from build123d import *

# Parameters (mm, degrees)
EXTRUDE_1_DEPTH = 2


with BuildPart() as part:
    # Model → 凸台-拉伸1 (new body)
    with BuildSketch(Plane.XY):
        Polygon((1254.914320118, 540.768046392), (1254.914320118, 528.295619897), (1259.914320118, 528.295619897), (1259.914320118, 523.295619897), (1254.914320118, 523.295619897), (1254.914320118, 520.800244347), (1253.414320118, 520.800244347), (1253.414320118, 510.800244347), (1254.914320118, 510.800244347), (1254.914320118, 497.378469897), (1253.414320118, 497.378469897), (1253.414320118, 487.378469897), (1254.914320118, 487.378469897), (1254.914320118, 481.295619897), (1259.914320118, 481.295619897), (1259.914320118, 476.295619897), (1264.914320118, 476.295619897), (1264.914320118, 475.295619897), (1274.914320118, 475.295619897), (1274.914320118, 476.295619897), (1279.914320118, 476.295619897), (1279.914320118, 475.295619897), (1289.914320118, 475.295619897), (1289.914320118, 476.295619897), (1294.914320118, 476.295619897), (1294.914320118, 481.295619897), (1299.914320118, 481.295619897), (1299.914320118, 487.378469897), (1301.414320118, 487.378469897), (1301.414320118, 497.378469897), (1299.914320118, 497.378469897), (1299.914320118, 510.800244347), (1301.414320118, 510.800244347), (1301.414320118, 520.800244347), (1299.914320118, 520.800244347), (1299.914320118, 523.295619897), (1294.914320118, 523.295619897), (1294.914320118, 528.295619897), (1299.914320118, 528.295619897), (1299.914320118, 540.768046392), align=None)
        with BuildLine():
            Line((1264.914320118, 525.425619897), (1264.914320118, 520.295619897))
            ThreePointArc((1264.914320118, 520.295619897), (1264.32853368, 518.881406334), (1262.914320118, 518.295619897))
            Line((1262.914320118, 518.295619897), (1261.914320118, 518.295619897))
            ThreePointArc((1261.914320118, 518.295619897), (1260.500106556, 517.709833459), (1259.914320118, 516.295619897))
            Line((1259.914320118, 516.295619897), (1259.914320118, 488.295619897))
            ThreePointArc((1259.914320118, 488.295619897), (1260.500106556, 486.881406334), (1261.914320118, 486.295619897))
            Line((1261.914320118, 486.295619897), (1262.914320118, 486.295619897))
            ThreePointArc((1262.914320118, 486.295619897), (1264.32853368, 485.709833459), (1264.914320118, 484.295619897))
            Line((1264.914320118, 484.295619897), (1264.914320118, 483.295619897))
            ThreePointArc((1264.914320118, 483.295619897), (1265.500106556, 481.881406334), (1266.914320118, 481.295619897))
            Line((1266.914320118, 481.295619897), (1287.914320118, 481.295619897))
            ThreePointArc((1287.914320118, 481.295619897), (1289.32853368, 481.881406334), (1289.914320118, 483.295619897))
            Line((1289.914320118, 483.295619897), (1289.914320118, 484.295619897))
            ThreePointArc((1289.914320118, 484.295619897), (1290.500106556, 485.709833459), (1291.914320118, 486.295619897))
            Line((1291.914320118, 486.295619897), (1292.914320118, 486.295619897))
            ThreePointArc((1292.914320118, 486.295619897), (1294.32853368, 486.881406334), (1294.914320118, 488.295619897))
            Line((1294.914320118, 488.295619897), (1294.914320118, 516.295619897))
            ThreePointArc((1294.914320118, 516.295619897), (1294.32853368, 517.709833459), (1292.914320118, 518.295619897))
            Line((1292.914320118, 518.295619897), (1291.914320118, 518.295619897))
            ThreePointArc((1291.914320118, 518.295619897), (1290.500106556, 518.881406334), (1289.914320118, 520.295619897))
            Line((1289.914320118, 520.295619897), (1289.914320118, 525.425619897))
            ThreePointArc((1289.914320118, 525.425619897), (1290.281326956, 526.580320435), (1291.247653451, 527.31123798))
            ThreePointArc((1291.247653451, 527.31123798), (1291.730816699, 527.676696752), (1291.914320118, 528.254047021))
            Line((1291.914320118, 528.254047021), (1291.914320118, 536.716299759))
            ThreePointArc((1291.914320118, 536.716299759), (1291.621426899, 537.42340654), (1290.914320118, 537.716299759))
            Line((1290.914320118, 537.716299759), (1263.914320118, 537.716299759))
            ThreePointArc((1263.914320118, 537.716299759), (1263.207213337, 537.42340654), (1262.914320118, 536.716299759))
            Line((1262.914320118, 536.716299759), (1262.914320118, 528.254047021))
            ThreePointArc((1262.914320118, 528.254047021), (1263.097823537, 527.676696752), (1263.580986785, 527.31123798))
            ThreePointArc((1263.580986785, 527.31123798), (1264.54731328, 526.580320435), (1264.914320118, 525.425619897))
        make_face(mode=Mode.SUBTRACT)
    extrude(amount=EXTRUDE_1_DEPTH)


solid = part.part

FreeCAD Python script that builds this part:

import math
import FreeCAD as App
import Part
import Sketcher
from FreeCAD import Vector
Q = App.Units.Quantity


def add_polygon(sketch, points):
    """Adds a closed chain of lines whose ends are joined by coincident constraints."""
    first, n = sketch.GeometryCount, len(points)
    for a, b in zip(points, points[1:] + points[:1]):
        sketch.addGeometry(Part.LineSegment(App.Vector(*a, 0), App.Vector(*b, 0)), False)
    for i in range(n):
        sketch.addConstraint(Sketcher.Constraint("Coincident", first + i, 2, first + (i + 1) % n, 1))

doc = App.newDocument("Part")
body = doc.addObject("PartDesign::Body", "Body")

# Sketch on XY plane
sketch1 = doc.addObject("Sketcher::SketchObject", "Sketch")
body.addObject(sketch1)
sketch1.AttachmentSupport = (doc.XY_Plane, [""])
sketch1.MapMode = "FlatFace"
add_polygon(sketch1, [(1254.91432, 540.768046), (1254.91432, 528.29562), (1259.91432, 528.29562), (1259.91432, 523.29562), (1254.91432, 523.29562), (1254.91432, 520.800244), (1253.41432, 520.800244), (1253.41432, 510.800244), (1254.91432, 510.800244), (1254.91432, 497.37847), (1253.41432, 497.37847), (1253.41432, 487.37847), (1254.91432, 487.37847), (1254.91432, 481.29562), (1259.91432, 481.29562), (1259.91432, 476.29562), (1264.91432, 476.29562), (1264.91432, 475.29562), (1274.91432, 475.29562), (1274.91432, 476.29562), (1279.91432, 476.29562), (1279.91432, 475.29562), (1289.91432, 475.29562), (1289.91432, 476.29562), (1294.91432, 476.29562), (1294.91432, 481.29562), (1299.91432, 481.29562), (1299.91432, 487.37847), (1301.41432, 487.37847), (1301.41432, 497.37847), (1299.91432, 497.37847), (1299.91432, 510.800244), (1301.41432, 510.800244), (1301.41432, 520.800244), (1299.91432, 520.800244), (1299.91432, 523.29562), (1294.91432, 523.29562), (1294.91432, 528.29562), (1299.91432, 528.29562), (1299.91432, 540.768046)])  # lines 0-39
sketch1.addGeometry(Part.LineSegment(Vector(1264.91432, 520.29562, 0), Vector(1264.91432, 525.42562, 0)), False)  # 40
sketch1.addGeometry(Part.ArcOfCircle(Part.Circle(Vector(1262.91432, 525.42562, 0), Vector(0, 0, 1), 2), math.radians(0), math.radians(70.528779)), False)  # 41
sketch1.addGeometry(Part.ArcOfCircle(Part.Circle(Vector(1263.91432, 528.254047, 0), Vector(0, 0, 1), 1), math.radians(180), math.radians(250.528779)), False)  # 42
sketch1.addGeometry(Part.LineSegment(Vector(1262.91432, 528.254047, 0), Vector(1262.91432, 536.7163, 0)), False)  # 43
sketch1.addGeometry(Part.ArcOfCircle(Part.Circle(Vector(1263.91432, 536.7163, 0), Vector(0, 0, 1), 1), math.radians(90), math.radians(180)), False)  # 44
sketch1.addGeometry(Part.LineSegment(Vector(1263.91432, 537.7163, 0), Vector(1290.91432, 537.7163, 0)), False)  # 45
sketch1.addGeometry(Part.ArcOfCircle(Part.Circle(Vector(1290.91432, 536.7163, 0), Vector(0, 0, 1), 1), math.radians(0), math.radians(90)), False)  # 46
sketch1.addGeometry(Part.LineSegment(Vector(1291.91432, 536.7163, 0), Vector(1291.91432, 528.254047, 0)), False)  # 47
sketch1.addGeometry(Part.ArcOfCircle(Part.Circle(Vector(1290.91432, 528.254047, 0), Vector(0, 0, 1), 1), math.radians(-70.528779), math.radians(0)), False)  # 48
sketch1.addGeometry(Part.ArcOfCircle(Part.Circle(Vector(1291.91432, 525.42562, 0), Vector(0, 0, 1), 2), math.radians(109.471221), math.radians(180)), False)  # 49
sketch1.addGeometry(Part.LineSegment(Vector(1289.91432, 525.42562, 0), Vector(1289.91432, 520.29562, 0)), False)  # 50
sketch1.addGeometry(Part.ArcOfCircle(Part.Circle(Vector(1291.91432, 520.29562, 0), Vector(0, 0, 1), 2), math.radians(180), math.radians(270)), False)  # 51
sketch1.addGeometry(Part.LineSegment(Vector(1291.91432, 518.29562, 0), Vector(1292.91432, 518.29562, 0)), False)  # 52
sketch1.addGeometry(Part.ArcOfCircle(Part.Circle(Vector(1292.91432, 516.29562, 0), Vector(0, 0, 1), 2), math.radians(0), math.radians(90)), False)  # 53
sketch1.addGeometry(Part.LineSegment(Vector(1294.91432, 516.29562, 0), Vector(1294.91432, 488.29562, 0)), False)  # 54
sketch1.addGeometry(Part.ArcOfCircle(Part.Circle(Vector(1292.91432, 488.29562, 0), Vector(0, 0, 1), 2), math.radians(-90), math.radians(0)), False)  # 55
sketch1.addGeometry(Part.LineSegment(Vector(1292.91432, 486.29562, 0), Vector(1291.91432, 486.29562, 0)), False)  # 56
sketch1.addGeometry(Part.ArcOfCircle(Part.Circle(Vector(1291.91432, 484.29562, 0), Vector(0, 0, 1), 2), math.radians(90), math.radians(180)), False)  # 57
sketch1.addGeometry(Part.LineSegment(Vector(1289.91432, 484.29562, 0), Vector(1289.91432, 483.29562, 0)), False)  # 58
sketch1.addGeometry(Part.ArcOfCircle(Part.Circle(Vector(1287.91432, 483.29562, 0), Vector(0, 0, 1), 2), math.radians(-90), math.radians(0)), False)  # 59
sketch1.addGeometry(Part.LineSegment(Vector(1287.91432, 481.29562, 0), Vector(1266.91432, 481.29562, 0)), False)  # 60
sketch1.addGeometry(Part.ArcOfCircle(Part.Circle(Vector(1266.91432, 483.29562, 0), Vector(0, 0, 1), 2), math.radians(180), math.radians(270)), False)  # 61
sketch1.addGeometry(Part.LineSegment(Vector(1264.91432, 483.29562, 0), Vector(1264.91432, 484.29562, 0)), False)  # 62
sketch1.addGeometry(Part.ArcOfCircle(Part.Circle(Vector(1262.91432, 484.29562, 0), Vector(0, 0, 1), 2), math.radians(0), math.radians(90)), False)  # 63
sketch1.addGeometry(Part.LineSegment(Vector(1262.91432, 486.29562, 0), Vector(1261.91432, 486.29562, 0)), False)  # 64
sketch1.addGeometry(Part.ArcOfCircle(Part.Circle(Vector(1261.91432, 488.29562, 0), Vector(0, 0, 1), 2), math.radians(180), math.radians(270)), False)  # 65
sketch1.addGeometry(Part.LineSegment(Vector(1259.91432, 488.29562, 0), Vector(1259.91432, 516.29562, 0)), False)  # 66
sketch1.addGeometry(Part.ArcOfCircle(Part.Circle(Vector(1261.91432, 516.29562, 0), Vector(0, 0, 1), 2), math.radians(90), math.radians(180)), False)  # 67
sketch1.addGeometry(Part.LineSegment(Vector(1261.91432, 518.29562, 0), Vector(1262.91432, 518.29562, 0)), False)  # 68
sketch1.addGeometry(Part.ArcOfCircle(Part.Circle(Vector(1262.91432, 520.29562, 0), Vector(0, 0, 1), 2), math.radians(-90), math.radians(0)), False)  # 69
sketch1.addConstraint([
    Sketcher.Constraint("Tangent", 40, 2, 41, 1),
    Sketcher.Constraint("Tangent", 41, 2, 42, 2),
    Sketcher.Constraint("Tangent", 42, 1, 43, 1),
    Sketcher.Constraint("Tangent", 43, 2, 44, 2),
    Sketcher.Constraint("Tangent", 44, 1, 45, 1),
    Sketcher.Constraint("Tangent", 45, 2, 46, 2),
    Sketcher.Constraint("Tangent", 46, 1, 47, 1),
    Sketcher.Constraint("Tangent", 47, 2, 48, 2),
    Sketcher.Constraint("Tangent", 48, 1, 49, 1),
    Sketcher.Constraint("Tangent", 49, 2, 50, 1),
    Sketcher.Constraint("Tangent", 50, 2, 51, 1),
    Sketcher.Constraint("Tangent", 51, 2, 52, 1),
    Sketcher.Constraint("Tangent", 52, 2, 53, 2),
    Sketcher.Constraint("Tangent", 53, 1, 54, 1),
    Sketcher.Constraint("Tangent", 54, 2, 55, 2),
    Sketcher.Constraint("Tangent", 55, 1, 56, 1),
    Sketcher.Constraint("Tangent", 56, 2, 57, 1),
    Sketcher.Constraint("Tangent", 57, 2, 58, 1),
    Sketcher.Constraint("Tangent", 58, 2, 59, 2),
    Sketcher.Constraint("Tangent", 59, 1, 60, 1),
    Sketcher.Constraint("Tangent", 60, 2, 61, 2),
    Sketcher.Constraint("Tangent", 61, 1, 62, 1),
    Sketcher.Constraint("Tangent", 62, 2, 63, 1),
    Sketcher.Constraint("Tangent", 63, 2, 64, 1),
    Sketcher.Constraint("Tangent", 64, 2, 65, 2),
    Sketcher.Constraint("Tangent", 65, 1, 66, 1),
    Sketcher.Constraint("Tangent", 66, 2, 67, 2),
    Sketcher.Constraint("Tangent", 67, 1, 68, 1),
    Sketcher.Constraint("Tangent", 68, 2, 69, 1),
    Sketcher.Constraint("Tangent", 69, 2, 40, 1),
    Sketcher.Constraint("Vertical", 0),
    Sketcher.Constraint("Horizontal", 1),
    Sketcher.Constraint("Vertical", 2),
    Sketcher.Constraint("Horizontal", 3),
    Sketcher.Constraint("Vertical", 4),
    Sketcher.Constraint("Horizontal", 5),
    Sketcher.Constraint("Vertical", 6),
    Sketcher.Constraint("Horizontal", 7),
    Sketcher.Constraint("Vertical", 8),
    Sketcher.Constraint("Horizontal", 9),
    Sketcher.Constraint("Vertical", 10),
    Sketcher.Constraint("Horizontal", 11),
    Sketcher.Constraint("Vertical", 12),
    Sketcher.Constraint("Horizontal", 13),
    Sketcher.Constraint("Vertical", 14),
    Sketcher.Constraint("Horizontal", 15),
    Sketcher.Constraint("Vertical", 16),
    Sketcher.Constraint("Horizontal", 17),
    Sketcher.Constraint("Vertical", 18),
    Sketcher.Constraint("Horizontal", 19),
    Sketcher.Constraint("Vertical", 20),
    Sketcher.Constraint("Horizontal", 21),
    Sketcher.Constraint("Vertical", 22),
    Sketcher.Constraint("Horizontal", 23),
    Sketcher.Constraint("Vertical", 24),
    Sketcher.Constraint("Horizontal", 25),
    Sketcher.Constraint("Vertical", 26),
    Sketcher.Constraint("Horizontal", 27),
    Sketcher.Constraint("Vertical", 28),
    Sketcher.Constraint("Horizontal", 29),
    Sketcher.Constraint("Vertical", 30),
    Sketcher.Constraint("Horizontal", 31),
    Sketcher.Constraint("Vertical", 32),
    Sketcher.Constraint("Horizontal", 33),
    Sketcher.Constraint("Vertical", 34),
    Sketcher.Constraint("Horizontal", 35),
    Sketcher.Constraint("Vertical", 36),
    Sketcher.Constraint("Horizontal", 37),
    Sketcher.Constraint("Vertical", 38),
    Sketcher.Constraint("Horizontal", 39),
    Sketcher.Constraint("Vertical", 40),
    Sketcher.Constraint("Vertical", 43),
    Sketcher.Constraint("Horizontal", 45),
    Sketcher.Constraint("Vertical", 47),
    Sketcher.Constraint("Vertical", 50),
    Sketcher.Constraint("Horizontal", 52),
    Sketcher.Constraint("Vertical", 54),
    Sketcher.Constraint("Horizontal", 56),
    Sketcher.Constraint("Vertical", 58),
    Sketcher.Constraint("Horizontal", 60),
    Sketcher.Constraint("Vertical", 62),
    Sketcher.Constraint("Horizontal", 64),
    Sketcher.Constraint("Vertical", 66),
    Sketcher.Constraint("Horizontal", 68),
    Sketcher.Constraint("Equal", 42, 44),
    Sketcher.Constraint("Equal", 44, 46),
    Sketcher.Constraint("Equal", 46, 48),
    Sketcher.Constraint("Equal", 41, 49),
    Sketcher.Constraint("Equal", 49, 51),
    Sketcher.Constraint("Equal", 51, 53),
    Sketcher.Constraint("Equal", 53, 55),
    Sketcher.Constraint("Equal", 55, 57),
    Sketcher.Constraint("Equal", 57, 59),
    Sketcher.Constraint("Equal", 59, 61),
    Sketcher.Constraint("Equal", 61, 63),
    Sketcher.Constraint("Equal", 63, 65),
    Sketcher.Constraint("Equal", 65, 67),
    Sketcher.Constraint("Equal", 67, 69),
    Sketcher.Constraint("Horizontal", 42, 3, 48, 3),
    Sketcher.Constraint("Horizontal", 41, 3, 49, 3),
    Sketcher.Constraint("Horizontal", 57, 3, 63, 3),
    Sketcher.Constraint("Horizontal", 53, 3, 67, 3),
    Sketcher.Constraint("Horizontal", 15, 2, 18, 2),
    Sketcher.Constraint("Horizontal", 17, 2, 20, 2),
    Sketcher.Constraint("Horizontal", 19, 2, 22, 2),
    Sketcher.Constraint("Horizontal", 13, 2, 24, 2),
    Sketcher.Constraint("Horizontal", 11, 2, 26, 2),
    Sketcher.Constraint("Horizontal", 9, 2, 28, 2),
    Sketcher.Constraint("Horizontal", 7, 2, 30, 2),
    Sketcher.Constraint("Horizontal", 5, 2, 32, 2),
    Sketcher.Constraint("Horizontal", 3, 2, 34, 2),
    Sketcher.Constraint("Horizontal", 1, 2, 36, 2),
    Sketcher.Constraint("Horizontal", 25, 2, 59, 1),
    Sketcher.Constraint("Vertical", 51, 3, 57, 3),
    Sketcher.Constraint("Vertical", 41, 3, 63, 3),
    Sketcher.Constraint("Vertical", 0, 2, 3, 2),
    Sketcher.Constraint("Vertical", 4, 2, 7, 2),
    Sketcher.Constraint("Vertical", 6, 2, 9, 2),
    Sketcher.Constraint("Vertical", 8, 2, 11, 2),
    Sketcher.Constraint("Vertical", 2, 2, 13, 2),
    Sketcher.Constraint("Vertical", 26, 2, 29, 2),
    Sketcher.Constraint("Vertical", 28, 2, 31, 2),
    Sketcher.Constraint("Vertical", 30, 2, 33, 2),
    Sketcher.Constraint("Vertical", 24, 2, 35, 2),
    Sketcher.Constraint("Vertical", 34, 2, 37, 2),
    Sketcher.Constraint("Vertical", 16, 2, 40, 2),
    Sketcher.Constraint("Vertical", 69, 3, 42, 1),
    Sketcher.Constraint("Vertical", 22, 2, 49, 2),
    Sketcher.Constraint("Vertical", 36, 2, 53, 1),
    Sketcher.Constraint("Vertical", 14, 2, 65, 1),
    Sketcher.Constraint("Equal", 13, 15),
    Sketcher.Constraint("Equal", 15, 19),
    Sketcher.Constraint("Equal", 17, 21),
    Sketcher.Constraint("Equal", 19, 23),
    Sketcher.Constraint("Equal", 23, 25),
    Sketcher.Constraint("Equal", 11, 27),
    Sketcher.Constraint("Equal", 37, 2),
    Sketcher.Constraint("Equal", 21, 6),
    Sketcher.Constraint("Equal", 6, 10),
    Sketcher.Constraint("Equal", 2, 14),
    Sketcher.Constraint("Equal", 68, 16),
    Sketcher.Constraint("Equal", 22, 58),
    Sketcher.Constraint("Radius", 41, Q("2 mm")),
    Sketcher.Constraint("Radius", 42, Q("1 mm")),
    Sketcher.Constraint("DistanceX", 1, 1, 1, 2, Q("5 mm")),
    Sketcher.Constraint("DistanceX", 17, 1, 17, 2, Q("10 mm")),
    Sketcher.Constraint("DistanceY", 54, 2, 54, 1, Q("28 mm")),
    Sketcher.Constraint("DistanceX", 5, 2, 5, 1, Q("1.5 mm")),
    Sketcher.Constraint("DistanceY", 40, 1, 40, 2, Q("5.13 mm")),
    Sketcher.Constraint("DistanceY", 12, 2, 12, 1, Q("6.08285 mm")),
    Sketcher.Constraint("DistanceY", -1, 1, 44, 3, Q("536.7163 mm")),
    Sketcher.Constraint("DistanceY", 0, 2, 0, 1, Q("12.472426 mm")),
    Sketcher.Constraint("DistanceY", 4, 2, 4, 1, Q("2.495376 mm")),
    Sketcher.Constraint("DistanceY", 8, 2, 8, 1, Q("13.421774 mm")),
    Sketcher.Constraint("DistanceY", 43, 1, 43, 2, Q("8.462253 mm")),
    Sketcher.Constraint("DistanceX", -1, 1, 41, 3, Q("1262.91432 mm")),
])
pad1 = doc.addObject("PartDesign::Pad", "Pad")
body.addObject(pad1)
pad1.Profile = sketch1
pad1.Length = 2

doc.recompute()
